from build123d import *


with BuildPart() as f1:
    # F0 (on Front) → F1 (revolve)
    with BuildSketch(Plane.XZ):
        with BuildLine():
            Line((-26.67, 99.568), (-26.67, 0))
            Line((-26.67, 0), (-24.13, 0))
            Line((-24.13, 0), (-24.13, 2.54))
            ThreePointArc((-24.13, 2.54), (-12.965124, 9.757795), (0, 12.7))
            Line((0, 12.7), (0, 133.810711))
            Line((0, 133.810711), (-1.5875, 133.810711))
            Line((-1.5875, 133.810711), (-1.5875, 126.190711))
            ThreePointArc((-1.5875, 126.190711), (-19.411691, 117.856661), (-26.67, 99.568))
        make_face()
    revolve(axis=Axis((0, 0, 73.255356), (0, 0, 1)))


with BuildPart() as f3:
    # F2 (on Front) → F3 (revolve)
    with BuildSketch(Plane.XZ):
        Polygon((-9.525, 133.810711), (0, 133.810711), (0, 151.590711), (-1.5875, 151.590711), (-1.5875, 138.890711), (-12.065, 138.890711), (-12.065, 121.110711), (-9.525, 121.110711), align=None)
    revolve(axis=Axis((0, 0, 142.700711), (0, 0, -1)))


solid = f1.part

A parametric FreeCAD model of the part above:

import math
import FreeCAD as App
import Part
import Sketcher
from FreeCAD import Vector
Q = App.Units.Quantity

doc = App.newDocument("Part")
body = doc.addObject("PartDesign::Body", "Body")

# Sketch on XZ plane
sketch1 = doc.addObject("Sketcher::SketchObject", "Sketch")
body.addObject(sketch1)
sketch1.AttachmentSupport = (doc.XZ_Plane, [""])
sketch1.MapMode = "FlatFace"
sketch1.addGeometry([
    Part.LineSegment(Vector(-26.7, 99.6, 0), Vector(-26.7, 0, 0)),  # 0
    Part.LineSegment(Vector(-26.7, 0, 0), Vector(-24.1, 0, 0)),  # 1
    Part.LineSegment(Vector(-24.1, 0, 0), Vector(-24.1, 2.5, 0)),  # 2
    Part.ArcOfCircle(Part.Circle(Vector(1.8, -25.4, 0), Vector(0, 0, 1), 38.1), math.radians(93), math.radians(133)),  # 3
    Part.LineSegment(Vector(0, 12.7, 0), Vector(0, 133.8, 0)),  # 4
    Part.LineSegment(Vector(0, 133.8, 0), Vector(-1.6, 133.8, 0)),  # 5
    Part.LineSegment(Vector(-1.6, 133.8, 0), Vector(-1.6, 126.2, 0)),  # 6
    Part.ArcOfCircle(Part.Circle(Vector(0, 99.6, 0), Vector(0, 0, 1), 26.7), math.radians(93), math.radians(180)),  # 7
], False)
sketch1.addConstraint([
    Sketcher.Constraint("Coincident", 0, 2, 1, 1),
    Sketcher.Constraint("Coincident", 1, 2, 2, 1),
    Sketcher.Constraint("Coincident", 2, 2, 3, 2),
    Sketcher.Constraint("Coincident", 3, 1, 4, 1),
    Sketcher.Constraint("Coincident", 4, 2, 5, 1),
    Sketcher.Constraint("Coincident", 5, 2, 6, 1),
    Sketcher.Constraint("Coincident", 6, 2, 7, 1),
    Sketcher.Constraint("Tangent", 7, 2, 0, 1),
    Sketcher.Constraint("Vertical", 0),
    Sketcher.Constraint("Horizontal", 1),
    Sketcher.Constraint("Vertical", 2),
    Sketcher.Constraint("Vertical", 4),
    Sketcher.Constraint("Horizontal", 5),
    Sketcher.Constraint("Vertical", 6),
    Sketcher.Constraint("PointOnObject", 7, 3, -2),
    Sketcher.Constraint("PointOnObject", 0, 2, -1),
    Sketcher.Constraint("PointOnObject", 3, 1, -2),
    Sketcher.Constraint("Equal", 1, 2),
    Sketcher.Constraint("Radius", 3, Q("1.5000001 in")),
    Sketcher.Constraint("Radius", 7, Q("1.0500001 in")),
    Sketcher.Constraint("DistanceX", 1, 1, 1, 2, Q("0.1 in")),
    Sketcher.Constraint("DistanceY", 6, 2, 6, 1, Q("0.3 in")),
    Sketcher.Constraint("DistanceY", 0, 2, 0, 1, Q("3.92 in")),
    Sketcher.Constraint("DistanceY", -1, 1, 3, 1, Q("0.5 in")),
    Sketcher.Constraint("DistanceX", 5, 2, 5, 1, Q("0.0625 in")),
])
revolution = doc.addObject("PartDesign::Revolution", "Revolution")
body.addObject(revolution)
revolution.Profile = sketch1
revolution.ReferenceAxis = (sketch1, ["V_Axis"])
revolution.Angle = 360
body2 = doc.addObject("PartDesign::Body", "Body001")

# Sketch on XZ plane
sketch2 = doc.addObject("Sketcher::SketchObject", "Sketch001")
body2.addObject(sketch2)
sketch2.AttachmentSupport = (doc.getObject("XZ_Plane001"), [""])
sketch2.MapMode = "FlatFace"
sketch2.addGeometry([
    Part.LineSegment(Vector(-9.5, 133.8, 0), Vector(0, 133.8, 0)),  # 0
    Part.LineSegment(Vector(0, 133.8, 0), Vector(0, 151.6, 0)),  # 1
    Part.LineSegment(Vector(0, 151.6, 0), Vector(-1.6, 151.6, 0)),  # 2
    Part.LineSegment(Vector(-1.6, 151.6, 0), Vector(-1.6, 138.9, 0)),  # 3
    Part.LineSegment(Vector(-1.6, 138.9, 0), Vector(-12.1, 138.9, 0)),  # 4
    Part.LineSegment(Vector(-12.1, 138.9, 0), Vector(-12.1, 121.1, 0)),  # 5
    Part.LineSegment(Vector(-12.1, 121.1, 0), Vector(-9.5, 121.1, 0)),  # 6
    Part.LineSegment(Vector(-9.5, 121.1, 0), Vector(-9.5, 133.8, 0)),  # 7
], False)
sketch2.addConstraint([
    Sketcher.Constraint("Coincident", 0, 2, 1, 1),
    Sketcher.Constraint("Coincident", 1, 2, 2, 1),
    Sketcher.Constraint("Coincident", 2, 2, 3, 1),
    Sketcher.Constraint("Coincident", 3, 2, 4, 1),
    Sketcher.Constraint("Coincident", 4, 2, 5, 1),
    Sketcher.Constraint("Coincident", 5, 2, 6, 1),
    Sketcher.Constraint("Coincident", 6, 2, 7, 1),
    Sketcher.Constraint("Coincident", 7, 2, 0, 1),
    Sketcher.Constraint("Horizontal", 0),
    Sketcher.Constraint("Vertical", 1),
    Sketcher.Constraint("Horizontal", 2),
    Sketcher.Constraint("Vertical", 3),
    Sketcher.Constraint("Horizontal", 4),
    Sketcher.Constraint("Vertical", 5),
    Sketcher.Constraint("Horizontal", 6),
    Sketcher.Constraint("Vertical", 7),
    Sketcher.Constraint("PointOnObject", 0, 2, -2),
    Sketcher.Constraint("Equal", 1, 5),
    Sketcher.Constraint("DistanceX", 6, 1, 6, 2, Q("0.1 in")),
    Sketcher.Constraint("DistanceY", 1, 1, 1, 2, Q("0.7 in")),
    Sketcher.Constraint("DistanceY", 3, 2, 3, 1, Q("0.5 in")),
    Sketcher.Constraint("DistanceX", 0, 1, 0, 2, Q("0.375 in")),
    Sketcher.Constraint("DistanceX", 2, 2, 2, 1, Q("0.0625 in")),
    Sketcher.Constraint("DistanceY", -1, 1, 0, 2, 133.810711),
])
revolution2 = doc.addObject("PartDesign::Revolution", "Revolution001")
body2.addObject(revolution2)
revolution2.Profile = sketch2
revolution2.ReferenceAxis = (sketch2, ["V_Axis"])
revolution2.Angle = 360
body2.Visibility = False

doc.recompute()
